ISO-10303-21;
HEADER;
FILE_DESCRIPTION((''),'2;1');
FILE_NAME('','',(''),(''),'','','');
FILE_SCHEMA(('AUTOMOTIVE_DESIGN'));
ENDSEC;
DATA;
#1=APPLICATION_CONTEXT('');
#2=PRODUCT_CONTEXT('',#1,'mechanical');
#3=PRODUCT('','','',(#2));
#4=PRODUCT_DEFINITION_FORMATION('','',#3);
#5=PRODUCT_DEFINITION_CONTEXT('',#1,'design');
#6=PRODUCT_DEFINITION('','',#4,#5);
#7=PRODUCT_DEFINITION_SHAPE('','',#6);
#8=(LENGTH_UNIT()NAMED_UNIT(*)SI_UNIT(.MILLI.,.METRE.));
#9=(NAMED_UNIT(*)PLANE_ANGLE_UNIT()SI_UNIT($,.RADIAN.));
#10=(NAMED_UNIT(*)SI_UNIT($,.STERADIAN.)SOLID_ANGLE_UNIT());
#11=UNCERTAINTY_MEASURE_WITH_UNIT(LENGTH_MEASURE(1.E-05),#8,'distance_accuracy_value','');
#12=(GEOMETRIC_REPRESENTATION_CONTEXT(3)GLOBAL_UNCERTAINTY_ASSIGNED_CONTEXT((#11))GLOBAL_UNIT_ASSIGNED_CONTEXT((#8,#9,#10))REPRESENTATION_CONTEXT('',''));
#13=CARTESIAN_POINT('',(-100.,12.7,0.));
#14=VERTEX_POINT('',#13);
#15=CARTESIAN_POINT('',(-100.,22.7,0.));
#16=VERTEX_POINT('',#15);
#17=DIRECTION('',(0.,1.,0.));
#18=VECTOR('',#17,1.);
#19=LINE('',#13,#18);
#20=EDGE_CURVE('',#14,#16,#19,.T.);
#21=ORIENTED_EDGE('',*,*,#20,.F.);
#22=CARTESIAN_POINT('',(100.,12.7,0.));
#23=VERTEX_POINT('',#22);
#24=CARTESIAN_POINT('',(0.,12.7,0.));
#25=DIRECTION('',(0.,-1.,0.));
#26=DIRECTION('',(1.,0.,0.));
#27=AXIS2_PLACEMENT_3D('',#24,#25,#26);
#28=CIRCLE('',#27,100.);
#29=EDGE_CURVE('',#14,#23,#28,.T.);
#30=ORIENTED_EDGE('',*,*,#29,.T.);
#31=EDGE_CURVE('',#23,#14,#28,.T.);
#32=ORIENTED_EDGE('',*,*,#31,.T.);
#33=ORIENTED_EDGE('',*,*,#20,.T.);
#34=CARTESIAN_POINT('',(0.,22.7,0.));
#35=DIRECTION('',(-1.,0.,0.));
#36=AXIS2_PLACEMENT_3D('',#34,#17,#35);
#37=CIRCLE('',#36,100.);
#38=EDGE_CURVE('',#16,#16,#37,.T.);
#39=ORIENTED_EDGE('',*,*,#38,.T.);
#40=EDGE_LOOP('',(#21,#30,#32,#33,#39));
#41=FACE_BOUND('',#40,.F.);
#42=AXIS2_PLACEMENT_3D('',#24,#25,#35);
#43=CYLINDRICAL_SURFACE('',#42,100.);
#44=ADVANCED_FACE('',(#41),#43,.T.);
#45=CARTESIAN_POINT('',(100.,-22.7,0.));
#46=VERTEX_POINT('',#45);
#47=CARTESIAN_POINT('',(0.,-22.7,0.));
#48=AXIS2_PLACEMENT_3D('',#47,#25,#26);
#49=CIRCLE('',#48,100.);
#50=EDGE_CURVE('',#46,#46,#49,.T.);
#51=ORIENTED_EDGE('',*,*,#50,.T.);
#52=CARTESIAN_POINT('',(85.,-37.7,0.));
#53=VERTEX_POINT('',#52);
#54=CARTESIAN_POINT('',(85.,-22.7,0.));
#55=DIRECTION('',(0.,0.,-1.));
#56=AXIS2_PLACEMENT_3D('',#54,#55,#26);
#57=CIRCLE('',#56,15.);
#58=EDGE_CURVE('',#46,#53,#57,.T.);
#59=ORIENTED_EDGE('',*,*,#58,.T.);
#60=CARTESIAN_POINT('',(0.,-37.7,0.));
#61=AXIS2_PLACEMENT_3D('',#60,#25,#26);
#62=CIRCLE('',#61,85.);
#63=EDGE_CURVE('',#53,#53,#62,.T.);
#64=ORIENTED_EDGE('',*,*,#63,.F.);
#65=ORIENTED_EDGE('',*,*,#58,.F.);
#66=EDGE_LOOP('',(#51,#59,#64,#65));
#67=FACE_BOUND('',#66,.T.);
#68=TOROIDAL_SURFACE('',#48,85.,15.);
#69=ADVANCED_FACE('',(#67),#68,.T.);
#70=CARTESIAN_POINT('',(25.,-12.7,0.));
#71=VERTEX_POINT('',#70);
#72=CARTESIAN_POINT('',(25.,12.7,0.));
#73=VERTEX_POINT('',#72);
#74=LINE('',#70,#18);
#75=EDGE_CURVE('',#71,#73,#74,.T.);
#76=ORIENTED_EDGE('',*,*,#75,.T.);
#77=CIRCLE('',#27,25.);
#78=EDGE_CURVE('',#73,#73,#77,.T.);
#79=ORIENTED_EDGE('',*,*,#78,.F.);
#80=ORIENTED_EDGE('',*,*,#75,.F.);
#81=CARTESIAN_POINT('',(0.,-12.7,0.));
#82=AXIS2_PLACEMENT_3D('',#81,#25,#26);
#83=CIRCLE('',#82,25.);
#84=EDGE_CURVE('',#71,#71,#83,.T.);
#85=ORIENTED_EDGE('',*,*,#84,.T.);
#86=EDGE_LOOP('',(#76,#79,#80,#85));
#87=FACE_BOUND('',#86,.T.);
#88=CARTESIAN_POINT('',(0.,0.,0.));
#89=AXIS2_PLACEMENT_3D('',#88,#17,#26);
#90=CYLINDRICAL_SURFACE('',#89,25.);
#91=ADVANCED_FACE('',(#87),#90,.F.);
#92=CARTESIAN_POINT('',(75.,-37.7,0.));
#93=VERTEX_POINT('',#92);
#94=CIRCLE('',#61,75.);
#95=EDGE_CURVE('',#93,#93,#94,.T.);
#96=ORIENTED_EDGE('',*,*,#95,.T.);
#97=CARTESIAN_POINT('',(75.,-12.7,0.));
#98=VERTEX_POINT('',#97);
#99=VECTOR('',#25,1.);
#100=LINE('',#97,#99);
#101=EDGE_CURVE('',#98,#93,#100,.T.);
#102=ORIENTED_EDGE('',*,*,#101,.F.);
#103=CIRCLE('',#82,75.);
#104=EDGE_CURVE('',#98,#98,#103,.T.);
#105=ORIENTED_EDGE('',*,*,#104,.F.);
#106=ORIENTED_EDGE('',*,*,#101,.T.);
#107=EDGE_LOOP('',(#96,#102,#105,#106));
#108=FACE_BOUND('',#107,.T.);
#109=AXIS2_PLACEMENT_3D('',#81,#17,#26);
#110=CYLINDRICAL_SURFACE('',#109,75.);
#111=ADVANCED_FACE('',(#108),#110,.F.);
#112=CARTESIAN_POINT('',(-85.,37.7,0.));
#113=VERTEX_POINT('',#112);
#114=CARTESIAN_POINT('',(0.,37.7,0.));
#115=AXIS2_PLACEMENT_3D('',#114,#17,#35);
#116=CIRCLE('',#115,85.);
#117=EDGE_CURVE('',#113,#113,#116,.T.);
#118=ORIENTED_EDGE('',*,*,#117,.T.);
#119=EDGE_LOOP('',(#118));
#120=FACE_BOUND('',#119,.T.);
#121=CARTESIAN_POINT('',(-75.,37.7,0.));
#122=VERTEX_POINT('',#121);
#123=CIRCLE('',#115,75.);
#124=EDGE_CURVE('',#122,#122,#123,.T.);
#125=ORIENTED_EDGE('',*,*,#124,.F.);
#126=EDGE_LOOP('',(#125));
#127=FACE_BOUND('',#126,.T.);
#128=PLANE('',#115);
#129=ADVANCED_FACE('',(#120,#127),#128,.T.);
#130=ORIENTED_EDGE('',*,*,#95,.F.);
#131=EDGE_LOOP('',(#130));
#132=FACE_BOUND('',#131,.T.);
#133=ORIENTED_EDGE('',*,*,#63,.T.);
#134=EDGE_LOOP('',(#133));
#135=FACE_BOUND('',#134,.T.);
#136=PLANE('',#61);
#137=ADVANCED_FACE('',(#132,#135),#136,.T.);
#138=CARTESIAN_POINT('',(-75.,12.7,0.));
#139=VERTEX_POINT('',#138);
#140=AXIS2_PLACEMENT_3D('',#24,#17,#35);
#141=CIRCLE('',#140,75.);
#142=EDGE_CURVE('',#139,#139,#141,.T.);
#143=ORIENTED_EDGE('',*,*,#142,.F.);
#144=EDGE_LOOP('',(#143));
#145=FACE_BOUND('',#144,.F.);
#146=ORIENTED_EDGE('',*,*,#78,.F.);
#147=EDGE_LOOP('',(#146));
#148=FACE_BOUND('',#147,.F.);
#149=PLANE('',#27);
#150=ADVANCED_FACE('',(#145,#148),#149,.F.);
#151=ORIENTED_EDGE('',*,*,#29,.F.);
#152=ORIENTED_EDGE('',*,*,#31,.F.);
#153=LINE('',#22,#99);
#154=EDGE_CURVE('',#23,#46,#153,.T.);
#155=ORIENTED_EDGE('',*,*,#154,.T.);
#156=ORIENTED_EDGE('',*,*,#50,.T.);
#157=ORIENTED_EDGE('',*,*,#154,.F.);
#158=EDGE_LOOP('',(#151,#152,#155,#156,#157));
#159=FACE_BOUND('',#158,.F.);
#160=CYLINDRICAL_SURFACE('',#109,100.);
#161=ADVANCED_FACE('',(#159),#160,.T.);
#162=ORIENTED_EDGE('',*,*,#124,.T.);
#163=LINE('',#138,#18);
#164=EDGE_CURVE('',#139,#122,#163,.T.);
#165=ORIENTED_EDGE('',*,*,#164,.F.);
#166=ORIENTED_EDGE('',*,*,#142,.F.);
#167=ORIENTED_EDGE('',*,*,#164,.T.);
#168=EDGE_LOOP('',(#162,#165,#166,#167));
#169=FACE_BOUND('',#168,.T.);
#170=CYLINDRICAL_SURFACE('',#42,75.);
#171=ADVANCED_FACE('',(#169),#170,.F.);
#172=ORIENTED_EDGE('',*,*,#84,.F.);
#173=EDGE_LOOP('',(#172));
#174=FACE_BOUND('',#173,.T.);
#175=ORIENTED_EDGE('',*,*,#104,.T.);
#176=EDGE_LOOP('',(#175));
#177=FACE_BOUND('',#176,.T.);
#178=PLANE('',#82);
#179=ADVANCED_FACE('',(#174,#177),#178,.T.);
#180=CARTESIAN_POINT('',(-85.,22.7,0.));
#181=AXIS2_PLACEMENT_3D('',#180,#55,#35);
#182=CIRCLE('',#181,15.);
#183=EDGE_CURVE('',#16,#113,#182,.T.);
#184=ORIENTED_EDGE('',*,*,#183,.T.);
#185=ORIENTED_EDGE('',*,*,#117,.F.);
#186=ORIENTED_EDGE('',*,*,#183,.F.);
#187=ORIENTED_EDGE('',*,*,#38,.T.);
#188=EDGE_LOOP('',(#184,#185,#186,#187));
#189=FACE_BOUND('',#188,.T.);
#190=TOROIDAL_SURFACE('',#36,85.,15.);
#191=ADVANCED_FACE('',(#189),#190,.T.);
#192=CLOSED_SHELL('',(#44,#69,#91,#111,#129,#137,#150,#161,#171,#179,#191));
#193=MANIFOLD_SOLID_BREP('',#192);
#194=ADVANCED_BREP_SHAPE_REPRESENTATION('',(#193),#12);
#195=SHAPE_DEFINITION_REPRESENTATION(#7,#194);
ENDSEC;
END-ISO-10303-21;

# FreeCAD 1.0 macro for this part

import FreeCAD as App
import Part
import Sketcher

V = App.Vector


def edges_at(feature, points):
    """Names of the edges that pass closest to the given points."""
    edges = feature.Shape.Edges
    near = lambda p: min(range(len(edges)), key=lambda i: edges[i].distToShape(Part.Vertex(*p))[0])
    return sorted({f"Edge{near(p) + 1}" for p in points})

doc = App.newDocument("Part")
body = doc.addObject("PartDesign::Body", "Body")

# Sketch on XZ plane
sketch1 = body.newObject("Sketcher::SketchObject", "Sketch")
sketch1.AttachmentSupport = (doc.getObject("XZ_Plane"), [""])
sketch1.MapMode = "FlatFace"
sketch1.addGeometry([
    Part.Circle(V(0, 0, 0), V(0, 0, 1), 100),
    Part.Circle(V(0, 0, 0), V(0, 0, 1), 25),
], False)
sketch1.addConstraint([
    Sketcher.Constraint("Coincident", 0, 3, -1, 1),
    Sketcher.Constraint("Coincident", 1, 3, -1, 1),
    Sketcher.Constraint("Diameter", 0, 200.0),
    Sketcher.Constraint("Diameter", 1, 50.0),
])
pad1 = body.newObject("PartDesign::Pad", "Pad")
pad1.Profile = sketch1
pad1.Length = 25.4
pad1.Midplane = True

# Sketch on XZ plane
sketch2 = body.newObject("Sketcher::SketchObject", "Sketch001")
sketch2.AttachmentSupport = (doc.getObject("XZ_Plane"), [""])
sketch2.MapMode = "FlatFace"
sketch2.AttachmentOffset = App.Placement(V(0, 0, 12.7), App.Rotation())
sketch2.addGeometry([
    Part.Circle(V(0, 0, 0), V(0, 0, 1), 100),
    Part.Circle(V(0, 0, 0), V(0, 0, 1), 75),
], False)
sketch2.addConstraint([
    Sketcher.Constraint("Coincident", 0, 3, -1, 1),
    Sketcher.Constraint("Coincident", 1, 3, -1, 1),
    Sketcher.Constraint("Diameter", 0, 200.0),
    Sketcher.Constraint("Diameter", 1, 150.0),
])
pad2 = body.newObject("PartDesign::Pad", "Pad001")
pad2.Profile = sketch2
pad2.Length = 25

# Sketch on XZ plane
sketch3 = body.newObject("Sketcher::SketchObject", "Sketch002")
sketch3.AttachmentSupport = (doc.getObject("XZ_Plane"), [""])
sketch3.MapMode = "FlatFace"
sketch3.AttachmentOffset = App.Placement(V(0, 0, -12.7), App.Rotation())
sketch3.addGeometry([
    Part.Circle(V(0, 0, 0), V(0, 0, 1), 100),
    Part.Circle(V(0, 0, 0), V(0, 0, 1), 75),
], False)
sketch3.addConstraint([
    Sketcher.Constraint("Coincident", 0, 3, -1, 1),
    Sketcher.Constraint("Coincident", 1, 3, -1, 1),
    Sketcher.Constraint("Diameter", 0, 200.0),
    Sketcher.Constraint("Diameter", 1, 150.0),
])
pad3 = body.newObject("PartDesign::Pad", "Pad002")
pad3.Profile = sketch3
pad3.Length = 25
pad3.Reversed = True
doc.recompute()

fillet = body.newObject("PartDesign::Fillet", "Fillet")
fillet.Base = (pad3, edges_at(pad3, [(100, 37.7, 0), (-100, -37.7, 0)]))
fillet.Radius = 15

doc.recompute()
